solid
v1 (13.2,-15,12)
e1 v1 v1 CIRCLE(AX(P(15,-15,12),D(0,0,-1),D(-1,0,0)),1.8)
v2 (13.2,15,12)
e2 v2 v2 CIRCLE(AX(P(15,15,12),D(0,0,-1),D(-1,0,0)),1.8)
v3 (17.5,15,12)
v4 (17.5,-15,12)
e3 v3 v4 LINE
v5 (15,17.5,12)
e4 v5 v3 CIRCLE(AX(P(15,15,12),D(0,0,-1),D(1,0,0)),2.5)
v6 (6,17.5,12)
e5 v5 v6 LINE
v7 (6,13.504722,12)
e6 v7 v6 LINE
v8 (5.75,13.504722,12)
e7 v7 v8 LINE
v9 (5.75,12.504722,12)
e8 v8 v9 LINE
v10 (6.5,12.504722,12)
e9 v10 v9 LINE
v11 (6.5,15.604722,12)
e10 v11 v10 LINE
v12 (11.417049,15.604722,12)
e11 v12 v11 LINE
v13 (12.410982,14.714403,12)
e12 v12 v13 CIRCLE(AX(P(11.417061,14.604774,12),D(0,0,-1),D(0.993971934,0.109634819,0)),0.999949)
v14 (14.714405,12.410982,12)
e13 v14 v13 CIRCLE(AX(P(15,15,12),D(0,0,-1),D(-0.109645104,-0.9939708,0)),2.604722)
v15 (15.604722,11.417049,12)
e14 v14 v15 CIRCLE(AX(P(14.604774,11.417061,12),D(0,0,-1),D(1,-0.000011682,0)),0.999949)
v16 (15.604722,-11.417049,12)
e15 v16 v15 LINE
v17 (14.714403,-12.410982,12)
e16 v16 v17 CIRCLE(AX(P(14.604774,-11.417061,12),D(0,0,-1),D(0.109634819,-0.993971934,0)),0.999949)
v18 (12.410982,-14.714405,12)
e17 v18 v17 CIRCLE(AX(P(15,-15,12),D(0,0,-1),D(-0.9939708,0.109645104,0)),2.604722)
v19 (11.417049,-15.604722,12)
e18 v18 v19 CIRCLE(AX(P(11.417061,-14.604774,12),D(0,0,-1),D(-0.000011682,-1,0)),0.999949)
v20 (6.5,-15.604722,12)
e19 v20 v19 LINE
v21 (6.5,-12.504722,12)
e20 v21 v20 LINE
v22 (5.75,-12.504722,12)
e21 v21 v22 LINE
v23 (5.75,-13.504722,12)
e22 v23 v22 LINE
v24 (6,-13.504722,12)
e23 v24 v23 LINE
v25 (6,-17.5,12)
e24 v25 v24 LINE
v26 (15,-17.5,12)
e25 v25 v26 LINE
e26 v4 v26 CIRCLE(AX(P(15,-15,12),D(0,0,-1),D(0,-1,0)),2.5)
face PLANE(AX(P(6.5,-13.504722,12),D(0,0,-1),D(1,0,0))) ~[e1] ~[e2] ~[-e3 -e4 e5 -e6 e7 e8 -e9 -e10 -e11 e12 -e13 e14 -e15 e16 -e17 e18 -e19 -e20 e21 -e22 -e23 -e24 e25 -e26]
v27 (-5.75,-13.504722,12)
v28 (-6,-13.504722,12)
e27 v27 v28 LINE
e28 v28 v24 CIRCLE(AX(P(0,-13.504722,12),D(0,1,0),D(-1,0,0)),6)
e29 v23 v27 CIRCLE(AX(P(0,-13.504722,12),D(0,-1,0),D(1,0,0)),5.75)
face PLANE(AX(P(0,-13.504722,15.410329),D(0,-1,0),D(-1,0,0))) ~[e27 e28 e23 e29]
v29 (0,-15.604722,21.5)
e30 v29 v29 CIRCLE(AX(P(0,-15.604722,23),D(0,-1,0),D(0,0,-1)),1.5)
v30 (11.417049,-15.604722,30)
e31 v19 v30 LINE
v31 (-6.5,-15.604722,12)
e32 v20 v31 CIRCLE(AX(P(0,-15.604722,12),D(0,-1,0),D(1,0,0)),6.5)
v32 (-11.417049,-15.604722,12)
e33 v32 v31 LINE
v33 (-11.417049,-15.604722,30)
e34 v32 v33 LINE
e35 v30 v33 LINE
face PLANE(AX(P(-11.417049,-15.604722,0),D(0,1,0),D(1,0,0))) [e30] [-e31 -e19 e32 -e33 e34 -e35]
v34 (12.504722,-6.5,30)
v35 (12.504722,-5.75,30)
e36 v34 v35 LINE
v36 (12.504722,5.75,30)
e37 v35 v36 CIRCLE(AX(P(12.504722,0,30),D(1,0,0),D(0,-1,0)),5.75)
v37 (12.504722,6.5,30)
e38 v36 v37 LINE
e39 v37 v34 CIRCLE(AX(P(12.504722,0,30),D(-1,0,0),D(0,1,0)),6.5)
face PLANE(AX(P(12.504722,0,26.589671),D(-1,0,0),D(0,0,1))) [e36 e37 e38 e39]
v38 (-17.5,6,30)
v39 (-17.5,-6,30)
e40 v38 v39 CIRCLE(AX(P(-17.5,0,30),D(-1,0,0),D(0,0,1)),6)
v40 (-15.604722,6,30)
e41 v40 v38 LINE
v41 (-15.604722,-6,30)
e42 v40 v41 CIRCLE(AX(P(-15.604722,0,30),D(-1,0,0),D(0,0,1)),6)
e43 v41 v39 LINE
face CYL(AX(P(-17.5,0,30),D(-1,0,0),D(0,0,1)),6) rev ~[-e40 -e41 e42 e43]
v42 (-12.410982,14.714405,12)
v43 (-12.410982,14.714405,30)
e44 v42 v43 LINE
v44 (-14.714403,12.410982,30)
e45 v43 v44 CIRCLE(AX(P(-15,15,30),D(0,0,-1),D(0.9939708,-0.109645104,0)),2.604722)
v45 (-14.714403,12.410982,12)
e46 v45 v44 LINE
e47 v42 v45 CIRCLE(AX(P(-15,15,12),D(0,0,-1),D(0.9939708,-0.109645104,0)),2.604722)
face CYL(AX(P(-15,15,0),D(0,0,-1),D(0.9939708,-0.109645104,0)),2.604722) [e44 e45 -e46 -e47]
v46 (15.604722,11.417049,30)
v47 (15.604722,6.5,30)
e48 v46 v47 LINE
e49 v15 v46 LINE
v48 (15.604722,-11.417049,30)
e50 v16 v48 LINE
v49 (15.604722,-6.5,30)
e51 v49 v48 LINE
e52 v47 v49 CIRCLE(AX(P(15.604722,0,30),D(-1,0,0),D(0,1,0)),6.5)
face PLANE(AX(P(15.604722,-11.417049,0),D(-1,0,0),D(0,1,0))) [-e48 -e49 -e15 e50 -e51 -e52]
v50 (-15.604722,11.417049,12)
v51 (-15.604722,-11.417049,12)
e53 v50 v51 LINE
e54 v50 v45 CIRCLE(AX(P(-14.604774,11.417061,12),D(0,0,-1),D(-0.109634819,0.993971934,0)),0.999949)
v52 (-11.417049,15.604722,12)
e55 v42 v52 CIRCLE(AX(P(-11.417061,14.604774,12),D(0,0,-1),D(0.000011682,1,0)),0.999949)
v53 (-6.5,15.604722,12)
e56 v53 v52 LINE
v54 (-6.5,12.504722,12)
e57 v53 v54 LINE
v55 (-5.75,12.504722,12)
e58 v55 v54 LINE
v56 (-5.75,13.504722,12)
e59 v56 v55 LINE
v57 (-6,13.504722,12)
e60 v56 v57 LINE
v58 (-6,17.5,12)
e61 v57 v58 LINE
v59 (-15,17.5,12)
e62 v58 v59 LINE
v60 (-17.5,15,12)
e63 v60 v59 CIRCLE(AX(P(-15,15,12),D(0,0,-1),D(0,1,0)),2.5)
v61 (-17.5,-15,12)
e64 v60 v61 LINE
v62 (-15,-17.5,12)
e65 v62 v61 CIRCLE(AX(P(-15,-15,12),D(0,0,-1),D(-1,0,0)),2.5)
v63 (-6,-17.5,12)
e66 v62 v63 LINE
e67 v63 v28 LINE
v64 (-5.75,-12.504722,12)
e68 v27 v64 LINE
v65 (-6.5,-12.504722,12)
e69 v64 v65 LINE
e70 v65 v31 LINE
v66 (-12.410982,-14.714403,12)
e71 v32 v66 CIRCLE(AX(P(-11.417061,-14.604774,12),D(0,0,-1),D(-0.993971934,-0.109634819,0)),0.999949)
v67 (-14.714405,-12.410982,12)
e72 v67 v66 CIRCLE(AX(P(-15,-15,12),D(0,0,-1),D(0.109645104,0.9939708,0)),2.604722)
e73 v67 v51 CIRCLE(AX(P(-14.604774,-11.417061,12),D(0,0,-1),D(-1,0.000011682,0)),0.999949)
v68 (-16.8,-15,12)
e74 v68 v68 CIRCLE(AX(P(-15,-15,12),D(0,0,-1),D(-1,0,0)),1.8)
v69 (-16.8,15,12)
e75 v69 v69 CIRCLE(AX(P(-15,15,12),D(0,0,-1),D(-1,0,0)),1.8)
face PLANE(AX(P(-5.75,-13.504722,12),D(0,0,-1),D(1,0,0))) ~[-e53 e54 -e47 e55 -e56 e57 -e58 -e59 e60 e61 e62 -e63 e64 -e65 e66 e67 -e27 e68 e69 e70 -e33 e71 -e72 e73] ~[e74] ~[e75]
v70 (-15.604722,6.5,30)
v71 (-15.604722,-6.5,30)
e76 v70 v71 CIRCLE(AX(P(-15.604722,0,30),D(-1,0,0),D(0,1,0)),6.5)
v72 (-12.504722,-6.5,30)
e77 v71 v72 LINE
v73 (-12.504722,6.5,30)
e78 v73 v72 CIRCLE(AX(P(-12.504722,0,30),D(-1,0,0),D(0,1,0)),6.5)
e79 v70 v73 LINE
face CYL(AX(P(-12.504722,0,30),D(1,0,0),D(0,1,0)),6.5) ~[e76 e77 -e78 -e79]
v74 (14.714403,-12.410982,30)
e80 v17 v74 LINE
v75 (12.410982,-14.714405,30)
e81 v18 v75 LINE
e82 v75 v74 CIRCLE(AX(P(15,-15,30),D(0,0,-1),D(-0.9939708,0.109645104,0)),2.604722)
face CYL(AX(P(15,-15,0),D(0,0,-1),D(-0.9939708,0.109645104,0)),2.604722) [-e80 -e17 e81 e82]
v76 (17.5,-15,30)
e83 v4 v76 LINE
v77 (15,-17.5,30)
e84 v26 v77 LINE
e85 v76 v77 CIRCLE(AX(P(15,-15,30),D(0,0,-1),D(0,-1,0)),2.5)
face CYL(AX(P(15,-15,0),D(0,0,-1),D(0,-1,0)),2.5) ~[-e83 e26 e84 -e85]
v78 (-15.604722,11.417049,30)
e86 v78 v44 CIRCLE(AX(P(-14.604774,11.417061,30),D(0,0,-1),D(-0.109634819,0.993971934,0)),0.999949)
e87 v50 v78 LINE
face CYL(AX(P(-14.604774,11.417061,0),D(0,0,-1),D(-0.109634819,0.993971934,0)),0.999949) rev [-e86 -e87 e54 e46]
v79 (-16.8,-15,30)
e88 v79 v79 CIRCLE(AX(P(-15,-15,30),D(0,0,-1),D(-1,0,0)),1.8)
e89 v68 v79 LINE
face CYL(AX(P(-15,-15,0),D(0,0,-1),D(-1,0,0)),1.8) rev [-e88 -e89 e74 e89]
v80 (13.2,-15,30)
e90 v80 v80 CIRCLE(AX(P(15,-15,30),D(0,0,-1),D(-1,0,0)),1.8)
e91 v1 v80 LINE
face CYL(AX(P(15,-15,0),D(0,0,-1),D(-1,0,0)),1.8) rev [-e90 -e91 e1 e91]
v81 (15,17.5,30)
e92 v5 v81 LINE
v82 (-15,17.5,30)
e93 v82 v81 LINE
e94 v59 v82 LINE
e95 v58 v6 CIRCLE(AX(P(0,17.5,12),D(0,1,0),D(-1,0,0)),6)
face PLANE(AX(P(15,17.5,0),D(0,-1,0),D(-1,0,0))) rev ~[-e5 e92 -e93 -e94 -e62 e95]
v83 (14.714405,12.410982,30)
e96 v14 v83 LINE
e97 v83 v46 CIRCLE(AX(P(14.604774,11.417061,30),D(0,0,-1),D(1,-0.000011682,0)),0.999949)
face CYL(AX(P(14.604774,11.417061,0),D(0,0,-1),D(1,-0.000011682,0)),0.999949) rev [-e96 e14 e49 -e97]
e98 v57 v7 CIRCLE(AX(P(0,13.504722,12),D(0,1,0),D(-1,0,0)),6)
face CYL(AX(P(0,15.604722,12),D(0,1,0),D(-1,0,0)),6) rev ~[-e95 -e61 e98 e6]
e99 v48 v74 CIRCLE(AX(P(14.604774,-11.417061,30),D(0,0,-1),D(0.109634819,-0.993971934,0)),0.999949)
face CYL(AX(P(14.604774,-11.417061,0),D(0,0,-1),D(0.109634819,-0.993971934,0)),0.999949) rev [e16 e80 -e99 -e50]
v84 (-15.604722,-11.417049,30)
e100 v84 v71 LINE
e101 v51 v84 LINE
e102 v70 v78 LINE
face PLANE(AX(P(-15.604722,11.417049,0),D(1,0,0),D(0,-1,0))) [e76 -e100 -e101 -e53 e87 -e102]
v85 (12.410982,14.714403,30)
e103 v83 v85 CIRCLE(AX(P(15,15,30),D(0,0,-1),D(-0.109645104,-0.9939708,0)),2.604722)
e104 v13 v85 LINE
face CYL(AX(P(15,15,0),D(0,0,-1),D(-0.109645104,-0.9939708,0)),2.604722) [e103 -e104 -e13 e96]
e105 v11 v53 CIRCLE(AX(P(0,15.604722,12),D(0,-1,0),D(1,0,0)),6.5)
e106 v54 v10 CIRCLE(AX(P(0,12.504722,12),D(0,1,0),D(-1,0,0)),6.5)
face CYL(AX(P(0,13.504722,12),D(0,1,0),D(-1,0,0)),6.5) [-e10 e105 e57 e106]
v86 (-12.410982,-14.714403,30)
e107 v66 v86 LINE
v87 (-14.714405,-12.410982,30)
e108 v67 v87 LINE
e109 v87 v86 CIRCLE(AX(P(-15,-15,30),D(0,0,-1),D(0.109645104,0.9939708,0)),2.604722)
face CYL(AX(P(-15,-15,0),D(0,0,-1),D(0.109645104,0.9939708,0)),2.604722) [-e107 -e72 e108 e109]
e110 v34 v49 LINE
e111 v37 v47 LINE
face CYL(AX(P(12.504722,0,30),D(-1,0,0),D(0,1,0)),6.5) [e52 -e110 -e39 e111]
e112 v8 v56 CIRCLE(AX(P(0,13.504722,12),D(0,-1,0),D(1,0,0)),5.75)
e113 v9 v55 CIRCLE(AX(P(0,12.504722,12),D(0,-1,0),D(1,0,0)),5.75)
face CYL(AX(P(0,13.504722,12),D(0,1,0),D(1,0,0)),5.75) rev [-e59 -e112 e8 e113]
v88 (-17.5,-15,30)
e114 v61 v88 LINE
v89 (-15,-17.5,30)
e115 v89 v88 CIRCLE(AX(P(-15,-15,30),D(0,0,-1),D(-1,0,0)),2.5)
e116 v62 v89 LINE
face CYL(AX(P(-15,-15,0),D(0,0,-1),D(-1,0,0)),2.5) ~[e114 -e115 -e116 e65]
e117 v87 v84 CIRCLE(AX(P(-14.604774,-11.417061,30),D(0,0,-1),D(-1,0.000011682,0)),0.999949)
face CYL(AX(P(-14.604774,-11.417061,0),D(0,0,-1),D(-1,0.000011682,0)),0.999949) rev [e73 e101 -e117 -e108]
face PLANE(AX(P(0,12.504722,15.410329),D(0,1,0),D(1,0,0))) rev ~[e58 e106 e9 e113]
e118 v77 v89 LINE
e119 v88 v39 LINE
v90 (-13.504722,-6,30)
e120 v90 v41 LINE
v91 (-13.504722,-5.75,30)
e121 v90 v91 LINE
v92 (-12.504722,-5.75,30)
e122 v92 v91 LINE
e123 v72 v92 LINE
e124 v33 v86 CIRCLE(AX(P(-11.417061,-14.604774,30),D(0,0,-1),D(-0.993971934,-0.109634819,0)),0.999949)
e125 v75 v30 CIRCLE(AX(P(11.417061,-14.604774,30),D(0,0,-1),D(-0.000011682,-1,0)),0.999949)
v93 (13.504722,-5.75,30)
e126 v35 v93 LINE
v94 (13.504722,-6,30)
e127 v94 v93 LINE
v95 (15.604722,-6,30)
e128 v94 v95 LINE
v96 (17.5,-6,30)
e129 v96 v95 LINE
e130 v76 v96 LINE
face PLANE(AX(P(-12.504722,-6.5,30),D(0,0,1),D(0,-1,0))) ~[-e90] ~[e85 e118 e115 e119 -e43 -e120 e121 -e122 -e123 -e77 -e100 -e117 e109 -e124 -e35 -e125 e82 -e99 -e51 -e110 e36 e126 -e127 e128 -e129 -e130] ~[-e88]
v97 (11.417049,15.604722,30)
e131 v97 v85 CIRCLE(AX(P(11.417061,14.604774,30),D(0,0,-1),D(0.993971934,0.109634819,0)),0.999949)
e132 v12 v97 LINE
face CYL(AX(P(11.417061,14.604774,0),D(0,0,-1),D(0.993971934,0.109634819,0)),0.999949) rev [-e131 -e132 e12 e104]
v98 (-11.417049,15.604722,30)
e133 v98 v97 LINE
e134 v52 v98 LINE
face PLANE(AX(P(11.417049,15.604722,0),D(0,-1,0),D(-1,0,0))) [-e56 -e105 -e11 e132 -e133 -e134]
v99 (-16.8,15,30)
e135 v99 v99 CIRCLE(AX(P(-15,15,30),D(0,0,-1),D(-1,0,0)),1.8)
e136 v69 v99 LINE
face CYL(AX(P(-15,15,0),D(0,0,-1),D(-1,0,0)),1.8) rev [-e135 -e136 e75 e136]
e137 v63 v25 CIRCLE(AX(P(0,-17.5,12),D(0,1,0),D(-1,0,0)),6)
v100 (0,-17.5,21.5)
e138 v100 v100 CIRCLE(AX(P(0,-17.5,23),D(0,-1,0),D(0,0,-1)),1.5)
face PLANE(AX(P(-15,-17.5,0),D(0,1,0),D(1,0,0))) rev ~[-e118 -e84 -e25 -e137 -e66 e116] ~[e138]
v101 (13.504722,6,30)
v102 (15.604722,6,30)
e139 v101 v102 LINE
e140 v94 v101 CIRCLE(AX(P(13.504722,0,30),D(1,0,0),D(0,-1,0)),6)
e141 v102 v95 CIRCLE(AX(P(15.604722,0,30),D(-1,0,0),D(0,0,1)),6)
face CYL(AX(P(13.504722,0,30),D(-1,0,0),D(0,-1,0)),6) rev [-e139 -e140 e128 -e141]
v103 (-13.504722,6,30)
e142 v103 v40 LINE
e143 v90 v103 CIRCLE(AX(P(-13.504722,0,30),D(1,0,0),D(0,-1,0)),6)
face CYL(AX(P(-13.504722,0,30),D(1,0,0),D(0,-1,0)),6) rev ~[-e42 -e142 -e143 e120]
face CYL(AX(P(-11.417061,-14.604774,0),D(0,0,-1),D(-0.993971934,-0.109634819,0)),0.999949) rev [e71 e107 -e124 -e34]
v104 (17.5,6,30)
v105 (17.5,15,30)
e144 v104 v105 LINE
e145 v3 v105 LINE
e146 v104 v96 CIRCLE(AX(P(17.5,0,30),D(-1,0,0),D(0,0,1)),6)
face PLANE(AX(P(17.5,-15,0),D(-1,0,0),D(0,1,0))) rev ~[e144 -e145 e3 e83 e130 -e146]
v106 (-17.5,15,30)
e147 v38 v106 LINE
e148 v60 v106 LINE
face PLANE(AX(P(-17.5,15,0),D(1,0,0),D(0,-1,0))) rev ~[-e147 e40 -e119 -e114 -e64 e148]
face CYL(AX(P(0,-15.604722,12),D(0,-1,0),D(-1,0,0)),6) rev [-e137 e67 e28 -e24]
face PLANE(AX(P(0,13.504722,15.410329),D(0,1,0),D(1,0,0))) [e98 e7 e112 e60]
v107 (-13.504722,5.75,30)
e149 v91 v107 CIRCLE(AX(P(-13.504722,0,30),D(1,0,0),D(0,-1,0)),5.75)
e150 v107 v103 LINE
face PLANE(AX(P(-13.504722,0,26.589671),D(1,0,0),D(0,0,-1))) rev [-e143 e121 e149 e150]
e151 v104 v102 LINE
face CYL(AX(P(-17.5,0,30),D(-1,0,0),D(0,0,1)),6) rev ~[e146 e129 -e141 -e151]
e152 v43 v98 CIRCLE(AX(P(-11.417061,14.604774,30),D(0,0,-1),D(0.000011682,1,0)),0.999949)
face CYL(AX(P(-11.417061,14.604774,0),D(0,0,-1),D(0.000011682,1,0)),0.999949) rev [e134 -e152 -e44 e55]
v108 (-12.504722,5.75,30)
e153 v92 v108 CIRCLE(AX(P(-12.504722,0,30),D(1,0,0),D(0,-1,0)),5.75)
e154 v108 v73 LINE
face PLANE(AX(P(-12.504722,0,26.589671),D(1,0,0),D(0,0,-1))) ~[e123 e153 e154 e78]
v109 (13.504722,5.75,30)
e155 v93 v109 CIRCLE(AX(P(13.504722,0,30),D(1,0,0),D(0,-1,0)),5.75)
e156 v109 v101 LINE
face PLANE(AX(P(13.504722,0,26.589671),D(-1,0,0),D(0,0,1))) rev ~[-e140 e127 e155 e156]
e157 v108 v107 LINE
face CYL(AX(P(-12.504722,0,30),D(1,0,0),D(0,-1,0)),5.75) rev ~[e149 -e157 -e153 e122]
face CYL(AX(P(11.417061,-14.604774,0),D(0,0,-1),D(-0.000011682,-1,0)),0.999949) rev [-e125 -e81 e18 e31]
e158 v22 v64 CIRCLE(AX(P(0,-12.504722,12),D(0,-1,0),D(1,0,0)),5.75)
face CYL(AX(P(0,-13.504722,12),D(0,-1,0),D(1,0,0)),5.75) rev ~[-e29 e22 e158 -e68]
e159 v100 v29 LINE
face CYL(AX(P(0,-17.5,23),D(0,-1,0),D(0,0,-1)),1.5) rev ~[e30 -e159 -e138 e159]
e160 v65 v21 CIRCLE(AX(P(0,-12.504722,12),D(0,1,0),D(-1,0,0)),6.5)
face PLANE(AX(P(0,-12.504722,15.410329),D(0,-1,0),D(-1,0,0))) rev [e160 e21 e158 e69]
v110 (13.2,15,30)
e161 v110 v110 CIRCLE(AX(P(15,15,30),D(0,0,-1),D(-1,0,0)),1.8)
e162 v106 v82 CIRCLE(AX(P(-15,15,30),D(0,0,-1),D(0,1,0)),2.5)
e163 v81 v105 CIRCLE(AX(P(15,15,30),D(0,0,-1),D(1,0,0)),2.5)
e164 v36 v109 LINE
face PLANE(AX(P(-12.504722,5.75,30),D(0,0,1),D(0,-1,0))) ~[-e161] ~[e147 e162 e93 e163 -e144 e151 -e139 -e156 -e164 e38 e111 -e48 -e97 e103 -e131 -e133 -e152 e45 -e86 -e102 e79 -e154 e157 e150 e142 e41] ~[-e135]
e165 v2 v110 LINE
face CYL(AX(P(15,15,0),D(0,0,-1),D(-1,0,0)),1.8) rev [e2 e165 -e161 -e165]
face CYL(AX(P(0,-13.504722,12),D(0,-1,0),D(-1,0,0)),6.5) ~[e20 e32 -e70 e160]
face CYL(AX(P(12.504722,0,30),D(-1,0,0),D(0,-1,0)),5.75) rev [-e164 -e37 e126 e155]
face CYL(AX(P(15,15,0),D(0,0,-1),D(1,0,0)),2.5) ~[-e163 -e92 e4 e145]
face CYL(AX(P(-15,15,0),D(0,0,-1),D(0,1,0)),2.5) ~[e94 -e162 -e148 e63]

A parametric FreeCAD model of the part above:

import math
import FreeCAD as App
import Part
import Sketcher

doc = App.newDocument("Part")
body = doc.addObject("PartDesign::Body", "Body")

# Sketch on XY plane
sketch1 = body.newObject("Sketcher::SketchObject", "Sketch")
sketch1.AttachmentSupport = (doc.getObject("XY_Plane"), [""])
sketch1.MapMode = "FlatFace"
sketch1.addGeometry(Part.LineSegment(App.Vector(17.5, -15, 0), App.Vector(17.5, 15, 0)), False)
sketch1.addGeometry(Part.ArcOfCircle(Part.Circle(App.Vector(15, 15, 0), App.Vector(0, 0, 1), 2.5), math.radians(0), math.radians(90)), False)
sketch1.addGeometry(Part.LineSegment(App.Vector(15, 17.5, 0), App.Vector(-15, 17.5, 0)), False)
sketch1.addGeometry(Part.ArcOfCircle(Part.Circle(App.Vector(-15, 15, 0), App.Vector(0, 0, 1), 2.5), math.radians(90), math.radians(180)), False)
sketch1.addGeometry(Part.LineSegment(App.Vector(-17.5, 15, 0), App.Vector(-17.5, -15, 0)), False)
sketch1.addGeometry(Part.ArcOfCircle(Part.Circle(App.Vector(-15, -15, 0), App.Vector(0, 0, 1), 2.5), math.radians(180), math.radians(270)), False)
sketch1.addGeometry(Part.LineSegment(App.Vector(-15, -17.5, 0), App.Vector(15, -17.5, 0)), False)
sketch1.addGeometry(Part.ArcOfCircle(Part.Circle(App.Vector(15, -15, 0), App.Vector(0, 0, 1), 2.5), math.radians(-90), math.radians(0)), False)
sketch1.addGeometry(Part.Circle(App.Vector(15, 15, 0), App.Vector(0, 0, 1), 1.8), False)
sketch1.addGeometry(Part.Circle(App.Vector(-15, 15, 0), App.Vector(0, 0, 1), 1.8), False)
sketch1.addGeometry(Part.Circle(App.Vector(15, -15, 0), App.Vector(0, 0, 1), 1.8), False)
sketch1.addGeometry(Part.LineSegment(App.Vector(-15.6, -11.4, 0), App.Vector(-15.6, 11.4, 0)), False)
sketch1.addGeometry(Part.ArcOfCircle(Part.Circle(App.Vector(-14.6, 11.4, 0), App.Vector(0, 0, 1), 1), math.radians(96), math.radians(180)), False)
sketch1.addGeometry(Part.ArcOfCircle(Part.Circle(App.Vector(-15, 15, 0), App.Vector(0, 0, 1), 2.6), math.radians(-84), math.radians(-6)), False)
sketch1.addGeometry(Part.ArcOfCircle(Part.Circle(App.Vector(-11.4, 14.6, 0), App.Vector(0, 0, 1), 1), math.radians(90), math.radians(174)), False)
sketch1.addGeometry(Part.LineSegment(App.Vector(-11.4, 15.6, 0), App.Vector(11.4, 15.6, 0)), False)
sketch1.addGeometry(Part.ArcOfCircle(Part.Circle(App.Vector(11.4, 14.6, 0), App.Vector(0, 0, 1), 1), math.radians(6), math.radians(90)), False)
sketch1.addGeometry(Part.ArcOfCircle(Part.Circle(App.Vector(15, 15, 0), App.Vector(0, 0, 1), 2.6), math.radians(-174), math.radians(-96)), False)
sketch1.addGeometry(Part.ArcOfCircle(Part.Circle(App.Vector(14.6, 11.4, 0), App.Vector(0, 0, 1), 1), math.radians(0), math.radians(84)), False)
sketch1.addGeometry(Part.LineSegment(App.Vector(15.6, 11.4, 0), App.Vector(15.6, -11.4, 0)), False)
sketch1.addGeometry(Part.ArcOfCircle(Part.Circle(App.Vector(14.6, -11.4, 0), App.Vector(0, 0, 1), 1), math.radians(-84), math.radians(0)), False)
sketch1.addGeometry(Part.ArcOfCircle(Part.Circle(App.Vector(15, -15, 0), App.Vector(0, 0, 1), 2.6), math.radians(96), math.radians(174)), False)
sketch1.addGeometry(Part.ArcOfCircle(Part.Circle(App.Vector(11.4, -14.6, 0), App.Vector(0, 0, 1), 1), math.radians(-90), math.radians(-6)), False)
sketch1.addGeometry(Part.LineSegment(App.Vector(11.4, -15.6, 0), App.Vector(-11.4, -15.6, 0)), False)
sketch1.addGeometry(Part.ArcOfCircle(Part.Circle(App.Vector(-11.4, -14.6, 0), App.Vector(0, 0, 1), 1), math.radians(-174), math.radians(-90)), False)
sketch1.addGeometry(Part.ArcOfCircle(Part.Circle(App.Vector(-15, -15, 0), App.Vector(0, 0, 1), 2.6), math.radians(6), math.radians(84)), False)
sketch1.addGeometry(Part.ArcOfCircle(Part.Circle(App.Vector(-14.6, -11.4, 0), App.Vector(0, 0, 1), 1), math.radians(180), math.radians(264)), False)
sketch1.addGeometry(Part.Circle(App.Vector(-15, -15, 0), App.Vector(0, 0, 1), 1.8), False)
sketch1.addConstraint(Sketcher.Constraint("Tangent", 0, 2, 1, 1))
sketch1.addConstraint(Sketcher.Constraint("Tangent", 1, 2, 2, 1))
sketch1.addConstraint(Sketcher.Constraint("Tangent", 2, 2, 3, 1))
sketch1.addConstraint(Sketcher.Constraint("Tangent", 3, 2, 4, 1))
sketch1.addConstraint(Sketcher.Constraint("Tangent", 4, 2, 5, 1))
sketch1.addConstraint(Sketcher.Constraint("Tangent", 5, 2, 6, 1))
sketch1.addConstraint(Sketcher.Constraint("Tangent", 6, 2, 7, 1))
sketch1.addConstraint(Sketcher.Constraint("Tangent", 7, 2, 0, 1))
sketch1.addConstraint(Sketcher.Constraint("Coincident", 11, 2, 12, 2))
sketch1.addConstraint(Sketcher.Constraint("Coincident", 12, 1, 13, 1))
sketch1.addConstraint(Sketcher.Constraint("Coincident", 13, 2, 14, 2))
sketch1.addConstraint(Sketcher.Constraint("Coincident", 14, 1, 15, 1))
sketch1.addConstraint(Sketcher.Constraint("Coincident", 15, 2, 16, 2))
sketch1.addConstraint(Sketcher.Constraint("Coincident", 16, 1, 17, 1))
sketch1.addConstraint(Sketcher.Constraint("Coincident", 17, 2, 18, 2))
sketch1.addConstraint(Sketcher.Constraint("Coincident", 18, 1, 19, 1))
sketch1.addConstraint(Sketcher.Constraint("Coincident", 19, 2, 20, 2))
sketch1.addConstraint(Sketcher.Constraint("Coincident", 20, 1, 21, 1))
sketch1.addConstraint(Sketcher.Constraint("Coincident", 21, 2, 22, 2))
sketch1.addConstraint(Sketcher.Constraint("Coincident", 22, 1, 23, 1))
sketch1.addConstraint(Sketcher.Constraint("Coincident", 23, 2, 24, 2))
sketch1.addConstraint(Sketcher.Constraint("Coincident", 24, 1, 25, 1))
sketch1.addConstraint(Sketcher.Constraint("Coincident", 25, 2, 26, 2))
sketch1.addConstraint(Sketcher.Constraint("Coincident", 26, 1, 11, 1))
sketch1.addConstraint(Sketcher.Constraint("Vertical", 0))
sketch1.addConstraint(Sketcher.Constraint("Horizontal", 2))
sketch1.addConstraint(Sketcher.Constraint("Vertical", 4))
sketch1.addConstraint(Sketcher.Constraint("Horizontal", 6))
sketch1.addConstraint(Sketcher.Constraint("Vertical", 11))
sketch1.addConstraint(Sketcher.Constraint("Horizontal", 15))
sketch1.addConstraint(Sketcher.Constraint("Vertical", 19))
sketch1.addConstraint(Sketcher.Constraint("Horizontal", 23))
sketch1.addConstraint(Sketcher.Constraint("Coincident", 8, 3, 1, 3))
sketch1.addConstraint(Sketcher.Constraint("Coincident", 9, 3, 3, 3))
sketch1.addConstraint(Sketcher.Constraint("Coincident", 10, 3, 7, 3))
sketch1.addConstraint(Sketcher.Constraint("Coincident", 13, 3, 3, 3))
sketch1.addConstraint(Sketcher.Constraint("Coincident", 17, 3, 1, 3))
sketch1.addConstraint(Sketcher.Constraint("Coincident", 21, 3, 7, 3))
sketch1.addConstraint(Sketcher.Constraint("Coincident", 25, 3, 5, 3))
sketch1.addConstraint(Sketcher.Constraint("Coincident", 27, 3, 5, 3))
sketch1.addConstraint(Sketcher.Constraint("Equal", 1, 3))
sketch1.addConstraint(Sketcher.Constraint("Equal", 3, 5))
sketch1.addConstraint(Sketcher.Constraint("Equal", 5, 7))
sketch1.addConstraint(Sketcher.Constraint("Equal", 8, 9))
sketch1.addConstraint(Sketcher.Constraint("Equal", 9, 10))
sketch1.addConstraint(Sketcher.Constraint("Equal", 12, 14))
sketch1.addConstraint(Sketcher.Constraint("Equal", 14, 16))
sketch1.addConstraint(Sketcher.Constraint("Equal", 13, 17))
sketch1.addConstraint(Sketcher.Constraint("Equal", 16, 18))
sketch1.addConstraint(Sketcher.Constraint("Equal", 18, 20))
sketch1.addConstraint(Sketcher.Constraint("Equal", 17, 21))
sketch1.addConstraint(Sketcher.Constraint("Equal", 20, 22))
sketch1.addConstraint(Sketcher.Constraint("Equal", 22, 24))
sketch1.addConstraint(Sketcher.Constraint("Equal", 21, 25))
sketch1.addConstraint(Sketcher.Constraint("Equal", 24, 26))
sketch1.addConstraint(Sketcher.Constraint("Equal", 10, 27))
sketch1.addConstraint(Sketcher.Constraint("Symmetric", 1, 3, 5, 3, -1, 1))
sketch1.addConstraint(Sketcher.Constraint("Symmetric", 11, 2, 19, 2, -1, 1))
sketch1.addConstraint(Sketcher.Constraint("Symmetric", 14, 1, 22, 1, -1, 1))
sketch1.addConstraint(Sketcher.Constraint("Horizontal", 12, 1, 17, 2))
sketch1.addConstraint(Sketcher.Constraint("Horizontal", 11, 2, 18, 1))
sketch1.addConstraint(Sketcher.Constraint("Horizontal", 20, 1, 25, 2))
sketch1.addConstraint(Sketcher.Constraint("Horizontal", 19, 2, 26, 1))
sketch1.addConstraint(Sketcher.Constraint("Vertical", 16, 1, 21, 2))
sketch1.addConstraint(Sketcher.Constraint("Vertical", 15, 2, 22, 1))
sketch1.addConstraint(Sketcher.Constraint("Vertical", 14, 1, 23, 2))
sketch1.addConstraint(Sketcher.Constraint("Vertical", 13, 2, 24, 1))
sketch1.addConstraint(Sketcher.Constraint("Equal", 6, 0))
sketch1.addConstraint(Sketcher.Constraint("Equal", 23, 11))
sketch1.addConstraint(Sketcher.Constraint("Diameter", 8, 3.6))
sketch1.addConstraint(Sketcher.Constraint("Radius", 1, 2.5))
sketch1.addConstraint(Sketcher.Constraint("DistanceX", 2, 2, 2, 1, 30.0))
sketch1.addConstraint(Sketcher.Constraint("Radius", 12, 0.999949))
sketch1.addConstraint(Sketcher.Constraint("DistanceX", 15, 1, 15, 2, 22.834099))
sketch1.addConstraint(Sketcher.Constraint("Radius", 13, 2.604722))
sketch1.addConstraint(Sketcher.Constraint("DistanceY", -1, 1, 12, 3, 11.417061))
sketch1.addConstraint(Sketcher.Constraint("DistanceX", 14, 3, -1, 1, 11.417061))
sketch1.addConstraint(Sketcher.Constraint("DistanceX", 13, 2, -1, 1, 12.410982))
sketch1.addConstraint(Sketcher.Constraint("DistanceY", -1, 1, 17, 2, 12.410982))
sketch1.addConstraint(Sketcher.Constraint("DistanceX", -1, 1, 21, 2, 12.410982))
sketch1.addConstraint(Sketcher.Constraint("DistanceY", 25, 2, -1, 1, 12.410982))
pad1 = body.newObject("PartDesign::Pad", "Pad")
pad1.Profile = sketch1
pad1.Length = 42

# Sketch on XZ plane
sketch2 = body.newObject("Sketcher::SketchObject", "Sketch001")
sketch2.AttachmentSupport = (doc.getObject("XZ_Plane"), [""])
sketch2.MapMode = "FlatFace"
sketch2.AttachmentOffset = App.Placement(App.Vector(0, 0, -17.5), App.Rotation())
sketch2.addGeometry(Part.Circle(App.Vector(0, 12, 0), App.Vector(0, 0, 1), 6), False)
sketch2.addConstraint(Sketcher.Constraint("PointOnObject", 0, 3, -2))
sketch2.addConstraint(Sketcher.Constraint("Diameter", 0, 12.0))
sketch2.addConstraint(Sketcher.Constraint("DistanceY", -1, 1, 0, 3, 12.0))
pocket1 = body.newObject("PartDesign::Pocket", "Pocket")
pocket1.Profile = sketch2
pocket1.Type = "ThroughAll"
pocket1.Reversed = True

# Sketch on YZ plane
sketch3 = body.newObject("Sketcher::SketchObject", "Sketch002")
sketch3.AttachmentSupport = (doc.getObject("YZ_Plane"), [""])
sketch3.MapMode = "FlatFace"
sketch3.AttachmentOffset = App.Placement(App.Vector(0, 0, -17.5), App.Rotation())
sketch3.addGeometry(Part.Circle(App.Vector(0, 30, 0), App.Vector(0, 0, 1), 6), False)
sketch3.addConstraint(Sketcher.Constraint("PointOnObject", 0, 3, -2))
sketch3.addConstraint(Sketcher.Constraint("Diameter", 0, 12.0))
sketch3.addConstraint(Sketcher.Constraint("DistanceY", -1, 1, 0, 3, 30.0))
pocket2 = body.newObject("PartDesign::Pocket", "Pocket001")
pocket2.Profile = sketch3
pocket2.Type = "ThroughAll"
pocket2.Reversed = True

# Sketch on YZ plane
sketch4 = body.newObject("Sketcher::SketchObject", "Sketch003")
sketch4.AttachmentSupport = (doc.getObject("YZ_Plane"), [""])
sketch4.MapMode = "FlatFace"
sketch4.AttachmentOffset = App.Placement(App.Vector(0, 0, 17.5), App.Rotation())
sketch4.addGeometry(Part.LineSegment(App.Vector(-25, 30, 0), App.Vector(-6, 30, 0)), False)
sketch4.addGeometry(Part.ArcOfCircle(Part.Circle(App.Vector(0, 30, 0), App.Vector(0, 0, 1), 6), math.radians(0), math.radians(180)), False)
sketch4.addGeometry(Part.LineSegment(App.Vector(6, 30, 0), App.Vector(24, 30, 0)), False)
sketch4.addGeometry(Part.LineSegment(App.Vector(24, 30, 0), App.Vector(25, 47, 0)), False)
sketch4.addGeometry(Part.LineSegment(App.Vector(25, 47, 0), App.Vector(-25, 47, 0)), False)
sketch4.addGeometry(Part.LineSegment(App.Vector(-25, 47, 0), App.Vector(-25, 30, 0)), False)
sketch4.addGeometry(Part.LineSegment(App.Vector(-25, 12, 0), App.Vector(-25, -12, 0)), False)
sketch4.addGeometry(Part.LineSegment(App.Vector(-25, -12, 0), App.Vector(24, -12, 0)), False)
sketch4.addGeometry(Part.LineSegment(App.Vector(24, -12, 0), App.Vector(24, 12, 0)), False)
sketch4.addGeometry(Part.LineSegment(App.Vector(24, 12, 0), App.Vector(-25, 12, 0)), False)
sketch4.addConstraint(Sketcher.Constraint("Coincident", 0, 2, 1, 2))
sketch4.addConstraint(Sketcher.Constraint("Coincident", 1, 1, 2, 1))
sketch4.addConstraint(Sketcher.Constraint("Coincident", 2, 2, 3, 1))
sketch4.addConstraint(Sketcher.Constraint("Coincident", 3, 2, 4, 1))
sketch4.addConstraint(Sketcher.Constraint("Coincident", 4, 2, 5, 1))
sketch4.addConstraint(Sketcher.Constraint("Coincident", 5, 2, 0, 1))
sketch4.addConstraint(Sketcher.Constraint("Coincident", 6, 2, 7, 1))
sketch4.addConstraint(Sketcher.Constraint("Coincident", 7, 2, 8, 1))
sketch4.addConstraint(Sketcher.Constraint("Coincident", 8, 2, 9, 1))
sketch4.addConstraint(Sketcher.Constraint("Coincident", 9, 2, 6, 1))
sketch4.addConstraint(Sketcher.Constraint("Horizontal", 0))
sketch4.addConstraint(Sketcher.Constraint("Horizontal", 2))
sketch4.addConstraint(Sketcher.Constraint("Horizontal", 4))
sketch4.addConstraint(Sketcher.Constraint("Vertical", 5))
sketch4.addConstraint(Sketcher.Constraint("Vertical", 6))
sketch4.addConstraint(Sketcher.Constraint("Horizontal", 7))
sketch4.addConstraint(Sketcher.Constraint("Vertical", 8))
sketch4.addConstraint(Sketcher.Constraint("Horizontal", 9))
sketch4.addConstraint(Sketcher.Constraint("Symmetric", 0, 2, 1, 1, -2))
sketch4.addConstraint(Sketcher.Constraint("Horizontal", 1, 3, 0, 2))
sketch4.addConstraint(Sketcher.Constraint("Vertical", 5, 2, 6, 2))
sketch4.addConstraint(Sketcher.Constraint("Vertical", 2, 2, 7, 2))
sketch4.addConstraint(Sketcher.Constraint("Radius", 1, 6.0))
sketch4.addConstraint(Sketcher.Constraint("DistanceY", -1, 1, 1, 3, 30.0))
sketch4.addConstraint(Sketcher.Constraint("DistanceY", -1, 1, 8, 2, 12.0))
sketch4.addConstraint(Sketcher.Constraint("DistanceX", 7, 1, 7, 2, 48.853769))
sketch4.addConstraint(Sketcher.Constraint("Distance", 3, 17.465062))
sketch4.addConstraint(Sketcher.Constraint("DistanceX", 0, 1, 0, 2, 18.974266))
sketch4.addConstraint(Sketcher.Constraint("DistanceX", 4, 2, 4, 1, 50.212515))
sketch4.addConstraint(Sketcher.Constraint("DistanceY", 6, 2, 6, 1, 24.116605))
pocket3 = body.newObject("PartDesign::Pocket", "Pocket002")
pocket3.Profile = sketch4
pocket3.Type = "ThroughAll"

# Sketch on XZ plane
sketch5 = body.newObject("Sketcher::SketchObject", "Sketch004")
sketch5.AttachmentSupport = (doc.getObject("XZ_Plane"), [""])
sketch5.MapMode = "FlatFace"
sketch5.AttachmentOffset = App.Placement(App.Vector(0, 0, -15.604722), App.Rotation())
sketch5.addGeometry(Part.LineSegment(App.Vector(6, 12, 0), App.Vector(6.5, 12, 0)), False)
sketch5.addGeometry(Part.ArcOfCircle(Part.Circle(App.Vector(0, 12, 0), App.Vector(0, 0, 1), 6.5), math.radians(0), math.radians(180)), False)
sketch5.addGeometry(Part.LineSegment(App.Vector(-6.5, 12, 0), App.Vector(-6, 12, 0)), False)
sketch5.addGeometry(Part.ArcOfCircle(Part.Circle(App.Vector(0, 12, 0), App.Vector(0, 0, 1), 6), math.radians(0), math.radians(180)), False)
sketch5.addConstraint(Sketcher.Constraint("Coincident", 0, 2, 1, 1))
sketch5.addConstraint(Sketcher.Constraint("Coincident", 1, 2, 2, 1))
sketch5.addConstraint(Sketcher.Constraint("Coincident", 2, 2, 3, 2))
sketch5.addConstraint(Sketcher.Constraint("Coincident", 3, 1, 0, 1))
sketch5.addConstraint(Sketcher.Constraint("Horizontal", 0))
sketch5.addConstraint(Sketcher.Constraint("Horizontal", 2))
sketch5.addConstraint(Sketcher.Constraint("Coincident", 3, 3, 1, 3))
sketch5.addConstraint(Sketcher.Constraint("Symmetric", 0, 2, 1, 2, -2))
sketch5.addConstraint(Sketcher.Constraint("Horizontal", 3, 3, 0, 2))
sketch5.addConstraint(Sketcher.Constraint("Radius", 3, 6.0))
sketch5.addConstraint(Sketcher.Constraint("Radius", 1, 6.5))
sketch5.addConstraint(Sketcher.Constraint("DistanceY", -1, 1, 1, 3, 12.0))
pad2 = body.newObject("PartDesign::Pad", "Pad001")
pad2.Profile = sketch5
pad2.Length = 2.1

# Sketch on XZ plane
sketch6 = body.newObject("Sketcher::SketchObject", "Sketch005")
sketch6.AttachmentSupport = (doc.getObject("XZ_Plane"), [""])
sketch6.MapMode = "FlatFace"
sketch6.AttachmentOffset = App.Placement(App.Vector(0, 0, -13.504722), App.Rotation())
sketch6.addGeometry(Part.LineSegment(App.Vector(5.8, 12, 0), App.Vector(6.5, 12, 0)), False)
sketch6.addGeometry(Part.ArcOfCircle(Part.Circle(App.Vector(0, 12, 0), App.Vector(0, 0, 1), 6.5), math.radians(0), math.radians(180)), False)
sketch6.addGeometry(Part.LineSegment(App.Vector(-6.5, 12, 0), App.Vector(-5.8, 12, 0)), False)
sketch6.addGeometry(Part.ArcOfCircle(Part.Circle(App.Vector(0, 12, 0), App.Vector(0, 0, 1), 5.8), math.radians(0), math.radians(180)), False)
sketch6.addConstraint(Sketcher.Constraint("Coincident", 0, 2, 1, 1))
sketch6.addConstraint(Sketcher.Constraint("Coincident", 1, 2, 2, 1))
sketch6.addConstraint(Sketcher.Constraint("Coincident", 2, 2, 3, 2))
sketch6.addConstraint(Sketcher.Constraint("Coincident", 3, 1, 0, 1))
sketch6.addConstraint(Sketcher.Constraint("Horizontal", 0))
sketch6.addConstraint(Sketcher.Constraint("Horizontal", 2))
sketch6.addConstraint(Sketcher.Constraint("Coincident", 3, 3, 1, 3))
sketch6.addConstraint(Sketcher.Constraint("Symmetric", 0, 2, 1, 2, -2))
sketch6.addConstraint(Sketcher.Constraint("Horizontal", 3, 3, 0, 2))
sketch6.addConstraint(Sketcher.Constraint("Radius", 1, 6.5))
sketch6.addConstraint(Sketcher.Constraint("Radius", 3, 5.75))
sketch6.addConstraint(Sketcher.Constraint("DistanceY", -1, 1, 1, 3, 12.0))
pad3 = body.newObject("PartDesign::Pad", "Pad002")
pad3.Profile = sketch6
pad3.Length = 1
doc.recompute()

mirrored = body.newObject("PartDesign::Mirrored", "Mirrored")
mirrored.Originals = [pad2, pad3]
mirrored.MirrorPlane = (doc.getObject("XZ_Plane"), [""])
body.Tip = mirrored

# Sketch on YZ plane
sketch7 = body.newObject("Sketcher::SketchObject", "Sketch006")
sketch7.AttachmentSupport = (doc.getObject("YZ_Plane"), [""])
sketch7.MapMode = "FlatFace"
sketch7.AttachmentOffset = App.Placement(App.Vector(0, 0, 13.504722), App.Rotation())
sketch7.addGeometry(Part.LineSegment(App.Vector(-6.5, 30, 0), App.Vector(-6, 30, 0)), False)
sketch7.addGeometry(Part.ArcOfCircle(Part.Circle(App.Vector(0, 30, 0), App.Vector(0, 0, 1), 6), math.radians(180), math.radians(360)), False)
sketch7.addGeometry(Part.LineSegment(App.Vector(6, 30, 0), App.Vector(6.5, 30, 0)), False)
sketch7.addGeometry(Part.ArcOfCircle(Part.Circle(App.Vector(0, 30, 0), App.Vector(0, 0, 1), 6.5), math.radians(180), math.radians(360)), False)
sketch7.addConstraint(Sketcher.Constraint("Coincident", 0, 2, 1, 1))
sketch7.addConstraint(Sketcher.Constraint("Coincident", 1, 2, 2, 1))
sketch7.addConstraint(Sketcher.Constraint("Coincident", 2, 2, 3, 2))
sketch7.addConstraint(Sketcher.Constraint("Coincident", 3, 1, 0, 1))
sketch7.addConstraint(Sketcher.Constraint("Horizontal", 0))
sketch7.addConstraint(Sketcher.Constraint("Horizontal", 2))
sketch7.addConstraint(Sketcher.Constraint("Coincident", 3, 3, 1, 3))
sketch7.addConstraint(Sketcher.Constraint("Symmetric", 0, 2, 1, 2, -2))
sketch7.addConstraint(Sketcher.Constraint("Horizontal", 3, 3, 0, 2))
sketch7.addConstraint(Sketcher.Constraint("Radius", 1, 6.0))
sketch7.addConstraint(Sketcher.Constraint("Radius", 3, 6.5))
sketch7.addConstraint(Sketcher.Constraint("DistanceY", -1, 1, 1, 3, 30.0))
pad4 = body.newObject("PartDesign::Pad", "Pad003")
pad4.Profile = sketch7
pad4.Length = 2.1

# Sketch on YZ plane
sketch8 = body.newObject("Sketcher::SketchObject", "Sketch007")
sketch8.AttachmentSupport = (doc.getObject("YZ_Plane"), [""])
sketch8.MapMode = "FlatFace"
sketch8.AttachmentOffset = App.Placement(App.Vector(0, 0, 12.504722), App.Rotation())
sketch8.addGeometry(Part.LineSegment(App.Vector(-6.5, 30, 0), App.Vector(-5.8, 30, 0)), False)
sketch8.addGeometry(Part.ArcOfCircle(Part.Circle(App.Vector(0, 30, 0), App.Vector(0, 0, 1), 5.8), math.radians(180), math.radians(360)), False)
sketch8.addGeometry(Part.LineSegment(App.Vector(5.8, 30, 0), App.Vector(6.5, 30, 0)), False)
sketch8.addGeometry(Part.ArcOfCircle(Part.Circle(App.Vector(0, 30, 0), App.Vector(0, 0, 1), 6.5), math.radians(180), math.radians(360)), False)
sketch8.addConstraint(Sketcher.Constraint("Coincident", 0, 2, 1, 1))
sketch8.addConstraint(Sketcher.Constraint("Coincident", 1, 2, 2, 1))
sketch8.addConstraint(Sketcher.Constraint("Coincident", 2, 2, 3, 2))
sketch8.addConstraint(Sketcher.Constraint("Coincident", 3, 1, 0, 1))
sketch8.addConstraint(Sketcher.Constraint("Horizontal", 0))
sketch8.addConstraint(Sketcher.Constraint("Horizontal", 2))
sketch8.addConstraint(Sketcher.Constraint("Coincident", 3, 3, 1, 3))
sketch8.addConstraint(Sketcher.Constraint("Symmetric", 0, 2, 1, 2, -2))
sketch8.addConstraint(Sketcher.Constraint("Horizontal", 3, 3, 0, 2))
sketch8.addConstraint(Sketcher.Constraint("Radius", 3, 6.5))
sketch8.addConstraint(Sketcher.Constraint("Radius", 1, 5.75))
sketch8.addConstraint(Sketcher.Constraint("DistanceY", -1, 1, 1, 3, 30.0))
pad5 = body.newObject("PartDesign::Pad", "Pad004")
pad5.Profile = sketch8
pad5.Length = 1
doc.recompute()

mirrored2 = body.newObject("PartDesign::Mirrored", "Mirrored001")
mirrored2.Originals = [pad4, pad5]
mirrored2.MirrorPlane = (doc.getObject("YZ_Plane"), [""])
body.Tip = mirrored2

# Sketch on XZ plane
sketch9 = body.newObject("Sketcher::SketchObject", "Sketch008")
sketch9.AttachmentSupport = (doc.getObject("XZ_Plane"), [""])
sketch9.MapMode = "FlatFace"
sketch9.AttachmentOffset = App.Placement(App.Vector(0, 0, 17.5), App.Rotation())
sketch9.addGeometry(Part.Circle(App.Vector(0, 23, 0), App.Vector(0, 0, 1), 1.5), False)
sketch9.addConstraint(Sketcher.Constraint("PointOnObject", 0, 3, -2))
sketch9.addConstraint(Sketcher.Constraint("Diameter", 0, 3.0))
sketch9.addConstraint(Sketcher.Constraint("DistanceY", -1, 1, 0, 3, 23.0))
pocket4 = body.newObject("PartDesign::Pocket", "Pocket003")
pocket4.Profile = sketch9
pocket4.Length = 3

doc.recompute()
